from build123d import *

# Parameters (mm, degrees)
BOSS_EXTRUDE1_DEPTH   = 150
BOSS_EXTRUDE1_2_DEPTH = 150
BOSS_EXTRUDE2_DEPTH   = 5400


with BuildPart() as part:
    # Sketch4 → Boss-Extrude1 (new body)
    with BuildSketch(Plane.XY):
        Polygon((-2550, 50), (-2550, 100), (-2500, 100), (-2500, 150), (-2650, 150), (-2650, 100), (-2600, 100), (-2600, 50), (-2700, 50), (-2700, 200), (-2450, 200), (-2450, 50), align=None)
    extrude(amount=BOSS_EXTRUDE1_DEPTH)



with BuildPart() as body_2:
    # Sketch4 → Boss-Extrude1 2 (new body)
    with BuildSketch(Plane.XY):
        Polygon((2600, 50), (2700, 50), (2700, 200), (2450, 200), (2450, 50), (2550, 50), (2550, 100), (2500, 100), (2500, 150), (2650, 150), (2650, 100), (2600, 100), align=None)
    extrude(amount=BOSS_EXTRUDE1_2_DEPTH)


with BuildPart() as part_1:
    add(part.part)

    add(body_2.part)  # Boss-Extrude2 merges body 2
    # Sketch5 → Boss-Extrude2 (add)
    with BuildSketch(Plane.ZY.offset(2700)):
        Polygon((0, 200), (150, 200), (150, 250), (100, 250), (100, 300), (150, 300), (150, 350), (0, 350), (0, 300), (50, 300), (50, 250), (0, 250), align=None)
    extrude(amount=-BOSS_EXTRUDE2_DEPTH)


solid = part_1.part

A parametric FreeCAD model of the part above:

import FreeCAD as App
import Part
import Sketcher

V = App.Vector


def add_polygon(sketch, points):
    """Adds a closed chain of lines whose ends are joined by coincident constraints."""
    first, n = sketch.GeometryCount, len(points)
    for a, b in zip(points, points[1:] + points[:1]):
        sketch.addGeometry(Part.LineSegment(App.Vector(*a, 0), App.Vector(*b, 0)), False)
    for i in range(n):
        sketch.addConstraint(Sketcher.Constraint("Coincident", first + i, 2, first + (i + 1) % n, 1))

doc = App.newDocument("Part")
body = doc.addObject("PartDesign::Body", "Body")

# Sketch on XY plane
sketch1 = body.newObject("Sketcher::SketchObject", "Sketch")
sketch1.AttachmentSupport = (doc.getObject("XY_Plane"), [""])
sketch1.MapMode = "FlatFace"
add_polygon(sketch1, [(-2550, 100), (-2550, 50), (-2450, 50), (-2450, 200), (-2700, 200), (-2700, 50), (-2600, 50), (-2600, 100), (-2650, 100), (-2650, 150), (-2500, 150), (-2500, 100)])  # lines 0-11
sketch1.addConstraint(Sketcher.Constraint("Vertical", 0))
sketch1.addConstraint(Sketcher.Constraint("Horizontal", 1))
sketch1.addConstraint(Sketcher.Constraint("Vertical", 2))
sketch1.addConstraint(Sketcher.Constraint("Horizontal", 3))
sketch1.addConstraint(Sketcher.Constraint("Vertical", 4))
sketch1.addConstraint(Sketcher.Constraint("Horizontal", 5))
sketch1.addConstraint(Sketcher.Constraint("Vertical", 6))
sketch1.addConstraint(Sketcher.Constraint("Horizontal", 7))
sketch1.addConstraint(Sketcher.Constraint("Vertical", 8))
sketch1.addConstraint(Sketcher.Constraint("Horizontal", 9))
sketch1.addConstraint(Sketcher.Constraint("Vertical", 10))
sketch1.addConstraint(Sketcher.Constraint("Horizontal", 11))
sketch1.addConstraint(Sketcher.Constraint("Horizontal", 1, 2, 4, 2))
sketch1.addConstraint(Sketcher.Constraint("Horizontal", 7, 2, 10, 2))
sketch1.addConstraint(Sketcher.Constraint("Equal", 1, 5))
sketch1.addConstraint(Sketcher.Constraint("Equal", 7, 11))
sketch1.addConstraint(Sketcher.Constraint("Equal", 11, 0))
sketch1.addConstraint(Sketcher.Constraint("Equal", 9, 2))
sketch1.addConstraint(Sketcher.Constraint("Equal", 6, 8))
sketch1.addConstraint(Sketcher.Constraint("DistanceX", 1, 1, 1, 2, 100.0))
sketch1.addConstraint(Sketcher.Constraint("DistanceX", 3, 2, 3, 1, 250.0))
sketch1.addConstraint(Sketcher.Constraint("DistanceX", 7, 2, 7, 1, 50.0))
sketch1.addConstraint(Sketcher.Constraint("DistanceX", 0, 2, -1, 1, 2550.0))
sketch1.addConstraint(Sketcher.Constraint("DistanceY", -1, 1, 0, 2, 50.0))
pad1 = body.newObject("PartDesign::Pad", "Pad")
pad1.Profile = sketch1
pad1.Length = 150
body2 = doc.addObject("PartDesign::Body", "Body001")

# Sketch on XY plane
sketch2 = body2.newObject("Sketcher::SketchObject", "Sketch001")
sketch2.AttachmentSupport = (doc.getObject("XY_Plane001"), [""])
sketch2.MapMode = "FlatFace"
add_polygon(sketch2, [(2600, 50), (2700, 50), (2700, 200), (2450, 200), (2450, 50), (2550, 50), (2550, 100), (2500, 100), (2500, 150), (2650, 150), (2650, 100), (2600, 100)])  # lines 0-11
sketch2.addConstraint(Sketcher.Constraint("Horizontal", 0))
sketch2.addConstraint(Sketcher.Constraint("Vertical", 1))
sketch2.addConstraint(Sketcher.Constraint("Horizontal", 2))
sketch2.addConstraint(Sketcher.Constraint("Vertical", 3))
sketch2.addConstraint(Sketcher.Constraint("Horizontal", 4))
sketch2.addConstraint(Sketcher.Constraint("Vertical", 5))
sketch2.addConstraint(Sketcher.Constraint("Horizontal", 6))
sketch2.addConstraint(Sketcher.Constraint("Vertical", 7))
sketch2.addConstraint(Sketcher.Constraint("Horizontal", 8))
sketch2.addConstraint(Sketcher.Constraint("Vertical", 9))
sketch2.addConstraint(Sketcher.Constraint("Horizontal", 10))
sketch2.addConstraint(Sketcher.Constraint("Vertical", 11))
sketch2.addConstraint(Sketcher.Constraint("Horizontal", 0, 2, 3, 2))
sketch2.addConstraint(Sketcher.Constraint("Horizontal", 6, 2, 9, 2))
sketch2.addConstraint(Sketcher.Constraint("Equal", 0, 4))
sketch2.addConstraint(Sketcher.Constraint("Equal", 6, 10))
sketch2.addConstraint(Sketcher.Constraint("Equal", 8, 1))
sketch2.addConstraint(Sketcher.Constraint("Equal", 10, 5))
sketch2.addConstraint(Sketcher.Constraint("Equal", 5, 7))
sketch2.addConstraint(Sketcher.Constraint("DistanceX", 0, 1, 0, 2, 100.0))
sketch2.addConstraint(Sketcher.Constraint("DistanceX", 2, 2, 2, 1, 250.0))
sketch2.addConstraint(Sketcher.Constraint("DistanceX", 6, 2, 6, 1, 50.0))
sketch2.addConstraint(Sketcher.Constraint("DistanceX", -1, 1, 0, 2, 2700.0))
sketch2.addConstraint(Sketcher.Constraint("DistanceY", -1, 1, 0, 2, 50.0))
pad2 = body2.newObject("PartDesign::Pad", "Pad001")
pad2.Profile = sketch2
pad2.Length = 150
body.AllowCompound = True
doc.recompute()

boolean = body.newObject("PartDesign::Boolean", "Boolean")
boolean.Type = "Fuse"
boolean.addObjects([body2])

# Sketch on YZ plane
sketch3 = body.newObject("Sketcher::SketchObject", "Sketch002")
sketch3.AttachmentSupport = (doc.getObject("YZ_Plane"), [""])
sketch3.MapMode = "FlatFace"
sketch3.AttachmentOffset = App.Placement(V(0, 0, -2700), App.Rotation())
add_polygon(sketch3, [(200, 0), (200, 150), (250, 150), (250, 100), (300, 100), (300, 150), (350, 150), (350, 0), (300, 0), (300, 50), (250, 50), (250, 0)])  # lines 0-11
sketch3.addConstraint(Sketcher.Constraint("Vertical", 0))
sketch3.addConstraint(Sketcher.Constraint("Horizontal", 1))
sketch3.addConstraint(Sketcher.Constraint("Vertical", 2))
sketch3.addConstraint(Sketcher.Constraint("Horizontal", 3))
sketch3.addConstraint(Sketcher.Constraint("Vertical", 4))
sketch3.addConstraint(Sketcher.Constraint("Horizontal", 5))
sketch3.addConstraint(Sketcher.Constraint("Vertical", 6))
sketch3.addConstraint(Sketcher.Constraint("Horizontal", 7))
sketch3.addConstraint(Sketcher.Constraint("Vertical", 8))
sketch3.addConstraint(Sketcher.Constraint("Horizontal", 9))
sketch3.addConstraint(Sketcher.Constraint("Vertical", 10))
sketch3.addConstraint(Sketcher.Constraint("Horizontal", 11))
sketch3.addConstraint(Sketcher.Constraint("PointOnObject", 6, 2, -1))
sketch3.addConstraint(Sketcher.Constraint("PointOnObject", 10, 2, -1))
sketch3.addConstraint(Sketcher.Constraint("Horizontal", 1, 2, 4, 2))
sketch3.addConstraint(Sketcher.Constraint("Vertical", 4, 2, 7, 2))
sketch3.addConstraint(Sketcher.Constraint("Vertical", 2, 2, 9, 2))
sketch3.addConstraint(Sketcher.Constraint("Equal", 1, 3))
sketch3.addConstraint(Sketcher.Constraint("Equal", 3, 5))
sketch3.addConstraint(Sketcher.Constraint("Equal", 11, 2))
sketch3.addConstraint(Sketcher.Constraint("Equal", 4, 8))
sketch3.addConstraint(Sketcher.Constraint("DistanceX", 1, 1, 1, 2, 50.0))
sketch3.addConstraint(Sketcher.Constraint("DistanceY", 0, 1, 0, 2, 150.0))
sketch3.addConstraint(Sketcher.Constraint("DistanceX", -1, 1, 0, 2, 200.0))
pad3 = body.newObject("PartDesign::Pad", "Pad002")
pad3.Profile = sketch3
pad3.Length = 5400

doc.recompute()
